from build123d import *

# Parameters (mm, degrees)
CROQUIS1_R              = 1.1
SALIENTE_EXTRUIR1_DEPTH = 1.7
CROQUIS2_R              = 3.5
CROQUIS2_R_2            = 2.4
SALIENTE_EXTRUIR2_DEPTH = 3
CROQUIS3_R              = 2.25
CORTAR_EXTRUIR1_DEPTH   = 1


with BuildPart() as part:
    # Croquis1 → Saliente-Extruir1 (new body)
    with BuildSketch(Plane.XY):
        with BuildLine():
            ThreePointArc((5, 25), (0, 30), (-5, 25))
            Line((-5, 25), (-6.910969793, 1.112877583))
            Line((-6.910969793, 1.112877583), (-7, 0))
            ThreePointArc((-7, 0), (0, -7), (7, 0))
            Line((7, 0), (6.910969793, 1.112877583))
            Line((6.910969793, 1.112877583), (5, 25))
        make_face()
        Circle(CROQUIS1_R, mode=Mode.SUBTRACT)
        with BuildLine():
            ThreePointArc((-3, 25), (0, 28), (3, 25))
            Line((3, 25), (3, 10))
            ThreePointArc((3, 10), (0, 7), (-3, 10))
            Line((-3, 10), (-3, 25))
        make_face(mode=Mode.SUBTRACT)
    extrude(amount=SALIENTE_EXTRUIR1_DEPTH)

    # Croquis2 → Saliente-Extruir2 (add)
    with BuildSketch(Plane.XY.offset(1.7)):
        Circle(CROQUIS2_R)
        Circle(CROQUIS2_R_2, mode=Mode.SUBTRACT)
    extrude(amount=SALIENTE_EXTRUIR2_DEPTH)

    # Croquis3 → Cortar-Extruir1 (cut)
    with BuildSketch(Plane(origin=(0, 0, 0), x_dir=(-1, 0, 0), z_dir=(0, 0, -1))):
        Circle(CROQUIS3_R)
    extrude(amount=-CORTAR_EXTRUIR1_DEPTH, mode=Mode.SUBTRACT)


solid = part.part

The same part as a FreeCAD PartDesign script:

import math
import FreeCAD as App
import Part
import Sketcher
from FreeCAD import Vector
Q = App.Units.Quantity

doc = App.newDocument("Part")
params = doc.addObject("Spreadsheet::Sheet", "Params")
for row, (alias, value) in enumerate([
    ("sketch1_radius", "5 mm"),
    ("sketch1_radius2", "7 mm"),
    ("sketch1_radius3", "3 mm"),
    ("sketch1_diameter", "2.2 mm"),
    ("sketch1_height", "15 mm"),
    ("pad1_length", "1.7 mm"),
    ("sketch2_diameter", "7 mm"),
    ("sketch2_diameter2", "4.8 mm"),
    ("pad2_length", "3 mm"),
    ("sketch3_diameter", "4.5 mm"),
    ("pocket1_length", "1 mm"),
], start=1):
    params.set(f"A{row}", alias)
    params.set(f"B{row}", "=" + value)
    params.setAlias(f"B{row}", alias)

body = doc.addObject("PartDesign::Body", "Body")

sketch1 = body.newObject("Sketcher::SketchObject", "Sketch")
sketch1.AttachmentSupport = (doc.getObject("XY_Plane"), [""])
sketch1.MapMode = "FlatFace"
sketch1.addGeometry([
    Part.ArcOfCircle(Part.Circle(Vector(0, 25, 0), Vector(0, 0, 1), 5), math.radians(0), math.radians(180)),
    Part.LineSegment(Vector(-5, 25, 0), Vector(-6.9, 1.1, 0)),
    Part.LineSegment(Vector(-6.9, 1.1, 0), Vector(-7, 0, 0)),
    Part.ArcOfCircle(Part.Circle(Vector(0, 0, 0), Vector(0, 0, 1), 7), math.radians(180), math.radians(360)),
    Part.LineSegment(Vector(7, 0, 0), Vector(6.9, 1.1, 0)),
    Part.LineSegment(Vector(6.9, 1.1, 0), Vector(5, 25, 0)),
    Part.Circle(Vector(0, 0, 0), Vector(0, 0, 1), 1.1),
    Part.LineSegment(Vector(-3, 10, 0), Vector(-3, 25, 0)),
    Part.ArcOfCircle(Part.Circle(Vector(0, 25, 0), Vector(0, 0, 1), 3), math.radians(0), math.radians(180)),
    Part.LineSegment(Vector(3, 25, 0), Vector(3, 10, 0)),
    Part.ArcOfCircle(Part.Circle(Vector(0, 10, 0), Vector(0, 0, 1), 3), math.radians(180), math.radians(360)),
], False)
sketch1.addConstraint([
    Sketcher.Constraint("Coincident", 0, 2, 1, 1),
    Sketcher.Constraint("Coincident", 1, 2, 2, 1),
    Sketcher.Constraint("Coincident", 2, 2, 3, 1),
    Sketcher.Constraint("Coincident", 3, 2, 4, 1),
    Sketcher.Constraint("Coincident", 4, 2, 5, 1),
    Sketcher.Constraint("Coincident", 5, 2, 0, 1),
    Sketcher.Constraint("Tangent", 7, 2, 8, 2),
    Sketcher.Constraint("Tangent", 8, 1, 9, 1),
    Sketcher.Constraint("Tangent", 9, 2, 10, 2),
    Sketcher.Constraint("Tangent", 10, 1, 7, 1),
    Sketcher.Constraint("Vertical", 7),
    Sketcher.Constraint("Vertical", 9),
    Sketcher.Constraint("Coincident", 3, 3, -1, 1),
    Sketcher.Constraint("Coincident", 6, 3, -1, 1),
    Sketcher.Constraint("Coincident", 8, 3, 0, 3),
    Sketcher.Constraint("Symmetric", 1, 2, 4, 2, -2),
    Sketcher.Constraint("Symmetric", 0, 2, 5, 2, -2),
    Sketcher.Constraint("PointOnObject", 2, 2, -1),
    Sketcher.Constraint("PointOnObject", 3, 2, -1),
    Sketcher.Constraint("Parallel", 1, 2),
    Sketcher.Constraint("Horizontal", 8, 3, 0, 2),
    Sketcher.Constraint("Radius", 0, Q("5 mm")),
    Sketcher.Constraint("Radius", 3, Q("7 mm")),
    Sketcher.Constraint("Radius", 8, Q("3 mm")),
    Sketcher.Constraint("Diameter", 6, Q("2.2 mm")),
    Sketcher.Constraint("DistanceY", 7, 1, 7, 2, Q("15 mm")),
    Sketcher.Constraint("DistanceY", -1, 1, 0, 3, Q("25 mm")),
    Sketcher.Constraint("Distance", 1, Q("23.963439 mm")),
])
sketch1.setExpression("Constraints[21]", "Params.sketch1_radius")
sketch1.setExpression("Constraints[22]", "Params.sketch1_radius2")
sketch1.setExpression("Constraints[23]", "Params.sketch1_radius3")
sketch1.setExpression("Constraints[24]", "Params.sketch1_diameter")
sketch1.setExpression("Constraints[25]", "Params.sketch1_height")
pad1 = body.newObject("PartDesign::Pad", "Pad")
pad1.Profile = sketch1
pad1.setExpression("Length", "Params.pad1_length")

sketch2 = body.newObject("Sketcher::SketchObject", "Sketch001")
sketch2.AttachmentSupport = (doc.getObject("XY_Plane"), [""])
sketch2.MapMode = "FlatFace"
sketch2.AttachmentOffset = App.Placement(Vector(0, 0, 1.7), App.Rotation())
sketch2.addGeometry([
    Part.Circle(Vector(0, 0, 0), Vector(0, 0, 1), 3.5),
    Part.Circle(Vector(0, 0, 0), Vector(0, 0, 1), 2.4),
], False)
sketch2.addConstraint([
    Sketcher.Constraint("Coincident", 0, 3, -1, 1),
    Sketcher.Constraint("Coincident", 1, 3, -1, 1),
    Sketcher.Constraint("Diameter", 0, Q("7 mm")),
    Sketcher.Constraint("Diameter", 1, Q("4.8 mm")),
])
sketch2.setExpression("Constraints[2]", "Params.sketch2_diameter")
sketch2.setExpression("Constraints[3]", "Params.sketch2_diameter2")
pad2 = body.newObject("PartDesign::Pad", "Pad001")
pad2.Profile = sketch2
pad2.setExpression("Length", "Params.pad2_length")

sketch3 = body.newObject("Sketcher::SketchObject", "Sketch002")
sketch3.AttachmentSupport = (doc.getObject("XY_Plane"), [""])
sketch3.MapMode = "FlatFace"
sketch3.addGeometry(Part.Circle(Vector(0, 0, 0), Vector(0, 0, 1), 2.2), False)
sketch3.addConstraint([
    Sketcher.Constraint("Coincident", 0, 3, -1, 1),
    Sketcher.Constraint("Diameter", 0, Q("4.5 mm")),
])
sketch3.setExpression("Constraints[1]", "Params.sketch3_diameter")
pocket1 = body.newObject("PartDesign::Pocket", "Pocket")
pocket1.Profile = sketch3
pocket1.setExpression("Length", "Params.pocket1_length")
pocket1.Reversed = True

doc.recompute()
